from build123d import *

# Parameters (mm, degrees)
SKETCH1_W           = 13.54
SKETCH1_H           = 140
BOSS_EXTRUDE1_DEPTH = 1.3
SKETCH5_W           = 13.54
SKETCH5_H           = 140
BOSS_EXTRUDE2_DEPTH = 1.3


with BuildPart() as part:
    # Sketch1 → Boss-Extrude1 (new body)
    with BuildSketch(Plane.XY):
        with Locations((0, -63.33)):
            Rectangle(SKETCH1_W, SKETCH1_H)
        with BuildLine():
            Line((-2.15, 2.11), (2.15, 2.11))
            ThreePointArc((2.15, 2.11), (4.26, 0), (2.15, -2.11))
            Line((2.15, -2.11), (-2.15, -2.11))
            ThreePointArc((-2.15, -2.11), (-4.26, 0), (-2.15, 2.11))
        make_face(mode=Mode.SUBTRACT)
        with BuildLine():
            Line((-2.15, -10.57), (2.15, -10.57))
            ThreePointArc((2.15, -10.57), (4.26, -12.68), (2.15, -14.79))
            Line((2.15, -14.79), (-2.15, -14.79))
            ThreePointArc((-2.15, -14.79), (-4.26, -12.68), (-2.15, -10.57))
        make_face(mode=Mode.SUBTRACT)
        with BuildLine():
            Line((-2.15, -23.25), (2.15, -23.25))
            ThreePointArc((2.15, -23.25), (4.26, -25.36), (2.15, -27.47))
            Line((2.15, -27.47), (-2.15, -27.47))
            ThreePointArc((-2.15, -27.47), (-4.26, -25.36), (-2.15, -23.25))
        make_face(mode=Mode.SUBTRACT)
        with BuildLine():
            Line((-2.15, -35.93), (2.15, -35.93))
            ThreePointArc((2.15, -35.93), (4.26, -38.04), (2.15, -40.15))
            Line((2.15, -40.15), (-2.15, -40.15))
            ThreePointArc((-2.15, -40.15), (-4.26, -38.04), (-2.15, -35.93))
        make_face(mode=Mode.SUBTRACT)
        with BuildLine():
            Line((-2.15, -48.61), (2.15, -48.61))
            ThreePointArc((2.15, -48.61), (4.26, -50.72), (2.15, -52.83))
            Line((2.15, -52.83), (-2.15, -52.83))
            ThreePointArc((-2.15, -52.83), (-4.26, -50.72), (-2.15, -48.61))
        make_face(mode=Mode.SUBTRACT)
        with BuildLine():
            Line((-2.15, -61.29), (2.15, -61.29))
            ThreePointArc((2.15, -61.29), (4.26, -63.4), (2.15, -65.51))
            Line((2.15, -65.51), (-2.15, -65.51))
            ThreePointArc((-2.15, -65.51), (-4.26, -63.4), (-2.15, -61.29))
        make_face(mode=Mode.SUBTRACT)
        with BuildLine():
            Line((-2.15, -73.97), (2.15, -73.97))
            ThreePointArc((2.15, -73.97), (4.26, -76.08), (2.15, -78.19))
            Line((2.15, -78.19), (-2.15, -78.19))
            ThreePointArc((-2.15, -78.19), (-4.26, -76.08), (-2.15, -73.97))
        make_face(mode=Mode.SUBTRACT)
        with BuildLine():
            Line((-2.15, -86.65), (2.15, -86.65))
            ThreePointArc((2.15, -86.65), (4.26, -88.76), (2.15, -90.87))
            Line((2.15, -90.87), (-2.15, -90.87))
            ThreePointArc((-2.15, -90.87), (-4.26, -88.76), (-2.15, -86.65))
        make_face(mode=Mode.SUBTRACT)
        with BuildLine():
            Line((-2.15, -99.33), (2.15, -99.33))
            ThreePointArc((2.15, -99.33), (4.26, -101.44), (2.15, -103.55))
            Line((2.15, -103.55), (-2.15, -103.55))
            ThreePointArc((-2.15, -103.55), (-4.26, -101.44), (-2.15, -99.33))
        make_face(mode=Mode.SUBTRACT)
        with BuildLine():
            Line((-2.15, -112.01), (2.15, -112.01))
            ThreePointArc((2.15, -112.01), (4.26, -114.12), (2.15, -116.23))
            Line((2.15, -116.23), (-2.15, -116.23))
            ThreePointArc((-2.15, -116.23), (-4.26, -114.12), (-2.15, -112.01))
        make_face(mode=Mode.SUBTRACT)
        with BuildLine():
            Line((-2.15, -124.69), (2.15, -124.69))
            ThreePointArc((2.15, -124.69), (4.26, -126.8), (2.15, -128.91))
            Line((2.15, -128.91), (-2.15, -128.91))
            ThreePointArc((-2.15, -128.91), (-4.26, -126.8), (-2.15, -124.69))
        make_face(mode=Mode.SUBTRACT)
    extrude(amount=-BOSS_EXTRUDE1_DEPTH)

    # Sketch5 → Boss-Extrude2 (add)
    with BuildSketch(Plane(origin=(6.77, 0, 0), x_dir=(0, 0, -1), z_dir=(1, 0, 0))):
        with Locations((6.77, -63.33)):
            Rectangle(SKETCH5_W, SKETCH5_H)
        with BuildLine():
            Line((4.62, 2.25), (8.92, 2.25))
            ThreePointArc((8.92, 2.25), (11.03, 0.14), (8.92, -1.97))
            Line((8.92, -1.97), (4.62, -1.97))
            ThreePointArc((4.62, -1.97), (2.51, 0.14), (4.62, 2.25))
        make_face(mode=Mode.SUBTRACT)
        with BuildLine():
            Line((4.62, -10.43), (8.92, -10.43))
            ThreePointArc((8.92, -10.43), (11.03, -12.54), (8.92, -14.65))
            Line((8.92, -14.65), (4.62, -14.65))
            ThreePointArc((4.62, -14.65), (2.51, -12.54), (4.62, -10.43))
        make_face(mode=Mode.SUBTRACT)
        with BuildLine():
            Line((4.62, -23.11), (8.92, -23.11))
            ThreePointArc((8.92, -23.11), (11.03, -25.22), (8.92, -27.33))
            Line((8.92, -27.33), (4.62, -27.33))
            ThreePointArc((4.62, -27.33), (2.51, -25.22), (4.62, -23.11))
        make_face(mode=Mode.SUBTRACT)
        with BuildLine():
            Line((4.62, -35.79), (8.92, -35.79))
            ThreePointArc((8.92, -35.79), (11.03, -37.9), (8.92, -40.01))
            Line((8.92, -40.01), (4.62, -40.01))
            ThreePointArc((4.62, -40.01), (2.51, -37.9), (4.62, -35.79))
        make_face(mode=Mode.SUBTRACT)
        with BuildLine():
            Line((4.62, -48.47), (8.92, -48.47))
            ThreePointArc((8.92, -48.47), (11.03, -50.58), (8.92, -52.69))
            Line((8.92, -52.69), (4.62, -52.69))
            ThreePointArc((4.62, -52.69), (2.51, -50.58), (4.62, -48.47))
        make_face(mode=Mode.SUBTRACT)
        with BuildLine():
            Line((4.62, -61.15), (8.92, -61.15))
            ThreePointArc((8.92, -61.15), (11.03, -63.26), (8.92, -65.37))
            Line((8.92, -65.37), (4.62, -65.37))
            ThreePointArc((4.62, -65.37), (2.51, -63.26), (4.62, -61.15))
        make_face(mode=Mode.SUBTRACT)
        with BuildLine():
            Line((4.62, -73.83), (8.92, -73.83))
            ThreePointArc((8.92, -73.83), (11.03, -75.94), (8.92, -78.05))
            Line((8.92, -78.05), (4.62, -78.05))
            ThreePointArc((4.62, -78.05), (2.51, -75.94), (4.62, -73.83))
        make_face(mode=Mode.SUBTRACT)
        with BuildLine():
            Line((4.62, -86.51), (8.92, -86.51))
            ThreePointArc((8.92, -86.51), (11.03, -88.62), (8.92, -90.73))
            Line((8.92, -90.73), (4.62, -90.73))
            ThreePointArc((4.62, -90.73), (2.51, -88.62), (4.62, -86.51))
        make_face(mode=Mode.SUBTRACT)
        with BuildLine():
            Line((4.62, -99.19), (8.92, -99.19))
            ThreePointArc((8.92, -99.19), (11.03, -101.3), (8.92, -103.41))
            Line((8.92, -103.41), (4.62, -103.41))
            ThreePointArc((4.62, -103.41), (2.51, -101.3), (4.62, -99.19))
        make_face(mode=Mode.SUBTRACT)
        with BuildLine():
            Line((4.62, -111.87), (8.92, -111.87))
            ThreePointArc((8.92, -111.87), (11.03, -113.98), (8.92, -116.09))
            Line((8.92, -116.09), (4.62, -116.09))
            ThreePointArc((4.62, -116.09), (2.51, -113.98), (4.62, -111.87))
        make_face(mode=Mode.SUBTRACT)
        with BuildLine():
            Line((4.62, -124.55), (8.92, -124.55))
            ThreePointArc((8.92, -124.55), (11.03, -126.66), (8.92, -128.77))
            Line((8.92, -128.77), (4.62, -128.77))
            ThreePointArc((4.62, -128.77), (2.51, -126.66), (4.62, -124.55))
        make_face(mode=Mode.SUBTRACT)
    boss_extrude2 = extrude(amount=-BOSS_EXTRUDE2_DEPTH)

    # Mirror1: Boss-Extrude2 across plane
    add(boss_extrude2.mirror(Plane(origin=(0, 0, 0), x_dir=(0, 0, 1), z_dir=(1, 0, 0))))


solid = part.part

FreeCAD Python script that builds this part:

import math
import FreeCAD as App
import Part
import Sketcher

V = App.Vector
Q = App.Units.Quantity

doc = App.newDocument("Part")
body = doc.addObject("PartDesign::Body", "Body")

sketch1 = body.newObject("Sketcher::SketchObject", "Sketch")
sketch1.AttachmentSupport = (doc.getObject("XY_Plane"), [""])
sketch1.MapMode = "FlatFace"
sketch1.addGeometry([
    Part.LineSegment(V(-6.8, 6.7, 0), V(-6.8, -133.3, 0)),
    Part.LineSegment(V(-6.8, -133.3, 0), V(6.8, -133.3, 0)),
    Part.LineSegment(V(6.8, -133.3, 0), V(6.8, 6.7, 0)),
    Part.LineSegment(V(6.8, 6.7, 0), V(-6.8, 6.7, 0)),
    Part.ArcOfCircle(Part.Circle(V(-2.1, -126.8, 0), V(0, 0, 1), 2.1), math.radians(90), math.radians(270)),
    Part.LineSegment(V(-2.1, -124.7, 0), V(2.1, -124.7, 0)),
    Part.ArcOfCircle(Part.Circle(V(2.1, -126.8, 0), V(0, 0, 1), 2.1), math.radians(-90), math.radians(90)),
    Part.LineSegment(V(2.1, -128.9, 0), V(-2.1, -128.9, 0)),
    Part.ArcOfCircle(Part.Circle(V(-2.1, -114.1, 0), V(0, 0, 1), 2.1), math.radians(90), math.radians(270)),
    Part.LineSegment(V(-2.1, -112, 0), V(2.1, -112, 0)),
    Part.ArcOfCircle(Part.Circle(V(2.1, -114.1, 0), V(0, 0, 1), 2.1), math.radians(-90), math.radians(90)),
    Part.LineSegment(V(2.1, -116.2, 0), V(-2.1, -116.2, 0)),
    Part.ArcOfCircle(Part.Circle(V(-2.1, -101.4, 0), V(0, 0, 1), 2.1), math.radians(90), math.radians(270)),
    Part.LineSegment(V(-2.1, -99.3, 0), V(2.1, -99.3, 0)),
    Part.ArcOfCircle(Part.Circle(V(2.1, -101.4, 0), V(0, 0, 1), 2.1), math.radians(-90), math.radians(90)),
    Part.LineSegment(V(2.1, -103.5, 0), V(-2.1, -103.5, 0)),
    Part.ArcOfCircle(Part.Circle(V(-2.1, -88.8, 0), V(0, 0, 1), 2.1), math.radians(90), math.radians(270)),
    Part.LineSegment(V(-2.1, -86.7, 0), V(2.1, -86.7, 0)),
    Part.ArcOfCircle(Part.Circle(V(2.1, -88.8, 0), V(0, 0, 1), 2.1), math.radians(-90), math.radians(90)),
    Part.LineSegment(V(2.1, -90.9, 0), V(-2.1, -90.9, 0)),
    Part.ArcOfCircle(Part.Circle(V(-2.1, -76.1, 0), V(0, 0, 1), 2.1), math.radians(90), math.radians(270)),
    Part.LineSegment(V(-2.1, -74, 0), V(2.1, -74, 0)),
    Part.ArcOfCircle(Part.Circle(V(2.1, -76.1, 0), V(0, 0, 1), 2.1), math.radians(-90), math.radians(90)),
    Part.LineSegment(V(2.1, -78.2, 0), V(-2.1, -78.2, 0)),
    Part.ArcOfCircle(Part.Circle(V(-2.1, -63.4, 0), V(0, 0, 1), 2.1), math.radians(90), math.radians(270)),
    Part.LineSegment(V(-2.1, -61.3, 0), V(2.1, -61.3, 0)),
    Part.ArcOfCircle(Part.Circle(V(2.1, -63.4, 0), V(0, 0, 1), 2.1), math.radians(-90), math.radians(90)),
    Part.LineSegment(V(2.1, -65.5, 0), V(-2.1, -65.5, 0)),
    Part.ArcOfCircle(Part.Circle(V(-2.1, -50.7, 0), V(0, 0, 1), 2.1), math.radians(90), math.radians(270)),
    Part.LineSegment(V(-2.1, -48.6, 0), V(2.1, -48.6, 0)),
    Part.ArcOfCircle(Part.Circle(V(2.1, -50.7, 0), V(0, 0, 1), 2.1), math.radians(-90), math.radians(90)),
    Part.LineSegment(V(2.1, -52.8, 0), V(-2.1, -52.8, 0)),
    Part.ArcOfCircle(Part.Circle(V(-2.1, -38, 0), V(0, 0, 1), 2.1), math.radians(90), math.radians(270)),
    Part.LineSegment(V(-2.1, -35.9, 0), V(2.1, -35.9, 0)),
    Part.ArcOfCircle(Part.Circle(V(2.1, -38, 0), V(0, 0, 1), 2.1), math.radians(-90), math.radians(90)),
    Part.LineSegment(V(2.1, -40.1, 0), V(-2.1, -40.1, 0)),
    Part.ArcOfCircle(Part.Circle(V(-2.1, -25.4, 0), V(0, 0, 1), 2.1), math.radians(90), math.radians(270)),
    Part.LineSegment(V(-2.1, -23.2, 0), V(2.1, -23.2, 0)),
    Part.ArcOfCircle(Part.Circle(V(2.1, -25.4, 0), V(0, 0, 1), 2.1), math.radians(-90), math.radians(90)),
    Part.LineSegment(V(2.1, -27.5, 0), V(-2.1, -27.5, 0)),
    Part.ArcOfCircle(Part.Circle(V(-2.1, -12.7, 0), V(0, 0, 1), 2.1), math.radians(90), math.radians(270)),
    Part.LineSegment(V(-2.1, -10.6, 0), V(2.1, -10.6, 0)),
    Part.ArcOfCircle(Part.Circle(V(2.1, -12.7, 0), V(0, 0, 1), 2.1), math.radians(-90), math.radians(90)),
    Part.LineSegment(V(2.1, -14.8, 0), V(-2.1, -14.8, 0)),
    Part.ArcOfCircle(Part.Circle(V(-2.1, 0, 0), V(0, 0, 1), 2.1), math.radians(90), math.radians(270)),
    Part.LineSegment(V(-2.1, 2.1, 0), V(2.1, 2.1, 0)),
    Part.ArcOfCircle(Part.Circle(V(2.1, 0, 0), V(0, 0, 1), 2.1), math.radians(-90), math.radians(90)),
    Part.LineSegment(V(2.1, -2.1, 0), V(-2.1, -2.1, 0)),
], False)
sketch1.addConstraint([
    Sketcher.Constraint("Coincident", 0, 2, 1, 1),
    Sketcher.Constraint("Coincident", 1, 2, 2, 1),
    Sketcher.Constraint("Coincident", 2, 2, 3, 1),
    Sketcher.Constraint("Coincident", 3, 2, 0, 1),
    Sketcher.Constraint("Tangent", 4, 1, 5, 1),
    Sketcher.Constraint("Tangent", 5, 2, 6, 2),
    Sketcher.Constraint("Tangent", 6, 1, 7, 1),
    Sketcher.Constraint("Tangent", 7, 2, 4, 2),
    Sketcher.Constraint("Tangent", 8, 1, 9, 1),
    Sketcher.Constraint("Tangent", 9, 2, 10, 2),
    Sketcher.Constraint("Tangent", 10, 1, 11, 1),
    Sketcher.Constraint("Tangent", 11, 2, 8, 2),
    Sketcher.Constraint("Tangent", 12, 1, 13, 1),
    Sketcher.Constraint("Tangent", 13, 2, 14, 2),
    Sketcher.Constraint("Tangent", 14, 1, 15, 1),
    Sketcher.Constraint("Tangent", 15, 2, 12, 2),
    Sketcher.Constraint("Tangent", 16, 1, 17, 1),
    Sketcher.Constraint("Tangent", 17, 2, 18, 2),
    Sketcher.Constraint("Tangent", 18, 1, 19, 1),
    Sketcher.Constraint("Tangent", 19, 2, 16, 2),
    Sketcher.Constraint("Tangent", 20, 1, 21, 1),
    Sketcher.Constraint("Tangent", 21, 2, 22, 2),
    Sketcher.Constraint("Tangent", 22, 1, 23, 1),
    Sketcher.Constraint("Tangent", 23, 2, 20, 2),
    Sketcher.Constraint("Tangent", 24, 1, 25, 1),
    Sketcher.Constraint("Tangent", 25, 2, 26, 2),
    Sketcher.Constraint("Tangent", 26, 1, 27, 1),
    Sketcher.Constraint("Tangent", 27, 2, 24, 2),
    Sketcher.Constraint("Tangent", 28, 1, 29, 1),
    Sketcher.Constraint("Tangent", 29, 2, 30, 2),
    Sketcher.Constraint("Tangent", 30, 1, 31, 1),
    Sketcher.Constraint("Tangent", 31, 2, 28, 2),
    Sketcher.Constraint("Tangent", 32, 1, 33, 1),
    Sketcher.Constraint("Tangent", 33, 2, 34, 2),
    Sketcher.Constraint("Tangent", 34, 1, 35, 1),
    Sketcher.Constraint("Tangent", 35, 2, 32, 2),
    Sketcher.Constraint("Tangent", 36, 1, 37, 1),
    Sketcher.Constraint("Tangent", 37, 2, 38, 2),
    Sketcher.Constraint("Tangent", 38, 1, 39, 1),
    Sketcher.Constraint("Tangent", 39, 2, 36, 2),
    Sketcher.Constraint("Tangent", 40, 1, 41, 1),
    Sketcher.Constraint("Tangent", 41, 2, 42, 2),
    Sketcher.Constraint("Tangent", 42, 1, 43, 1),
    Sketcher.Constraint("Tangent", 43, 2, 40, 2),
    Sketcher.Constraint("Tangent", 44, 1, 45, 1),
    Sketcher.Constraint("Tangent", 45, 2, 46, 2),
    Sketcher.Constraint("Tangent", 46, 1, 47, 1),
    Sketcher.Constraint("Tangent", 47, 2, 44, 2),
    Sketcher.Constraint("Vertical", 0),
    Sketcher.Constraint("Horizontal", 1),
    Sketcher.Constraint("Vertical", 2),
    Sketcher.Constraint("Horizontal", 3),
    Sketcher.Constraint("Horizontal", 5),
    Sketcher.Constraint("Horizontal", 7),
    Sketcher.Constraint("Horizontal", 9),
    Sketcher.Constraint("Horizontal", 11),
    Sketcher.Constraint("Horizontal", 13),
    Sketcher.Constraint("Horizontal", 15),
    Sketcher.Constraint("Horizontal", 17),
    Sketcher.Constraint("Horizontal", 19),
    Sketcher.Constraint("Horizontal", 21),
    Sketcher.Constraint("Horizontal", 23),
    Sketcher.Constraint("Horizontal", 25),
    Sketcher.Constraint("Horizontal", 27),
    Sketcher.Constraint("Horizontal", 29),
    Sketcher.Constraint("Horizontal", 31),
    Sketcher.Constraint("Horizontal", 33),
    Sketcher.Constraint("Horizontal", 35),
    Sketcher.Constraint("Horizontal", 37),
    Sketcher.Constraint("Horizontal", 39),
    Sketcher.Constraint("Horizontal", 41),
    Sketcher.Constraint("Horizontal", 43),
    Sketcher.Constraint("Horizontal", 45),
    Sketcher.Constraint("Horizontal", 47),
    Sketcher.Constraint("Equal", 6, 8),
    Sketcher.Constraint("Equal", 10, 12),
    Sketcher.Constraint("Equal", 14, 16),
    Sketcher.Constraint("Equal", 18, 20),
    Sketcher.Constraint("Equal", 22, 24),
    Sketcher.Constraint("Equal", 26, 28),
    Sketcher.Constraint("Equal", 30, 32),
    Sketcher.Constraint("Equal", 34, 36),
    Sketcher.Constraint("Equal", 38, 40),
    Sketcher.Constraint("Equal", 42, 44),
    Sketcher.Constraint("Symmetric", 44, 3, 46, 3, -1, 1),
    Sketcher.Constraint("Vertical", 4, 3, 8, 3),
    Sketcher.Constraint("Vertical", 6, 3, 10, 3),
    Sketcher.Constraint("Vertical", 8, 3, 12, 3),
    Sketcher.Constraint("Vertical", 10, 3, 14, 3),
    Sketcher.Constraint("Vertical", 12, 3, 16, 3),
    Sketcher.Constraint("Vertical", 14, 3, 18, 3),
    Sketcher.Constraint("Vertical", 16, 3, 20, 3),
    Sketcher.Constraint("Vertical", 18, 3, 22, 3),
    Sketcher.Constraint("Vertical", 20, 3, 24, 3),
    Sketcher.Constraint("Vertical", 22, 3, 26, 3),
    Sketcher.Constraint("Vertical", 24, 3, 28, 3),
    Sketcher.Constraint("Vertical", 26, 3, 30, 3),
    Sketcher.Constraint("Vertical", 28, 3, 32, 3),
    Sketcher.Constraint("Vertical", 30, 3, 34, 3),
    Sketcher.Constraint("Vertical", 32, 3, 36, 3),
    Sketcher.Constraint("Vertical", 34, 3, 38, 3),
    Sketcher.Constraint("Vertical", 36, 3, 40, 3),
    Sketcher.Constraint("Vertical", 38, 3, 42, 3),
    Sketcher.Constraint("Vertical", 40, 3, 44, 3),
    Sketcher.Constraint("Vertical", 42, 3, 46, 3),
    Sketcher.Constraint("DistanceY", 0, 2, 0, 1, Q("140 mm")),
    Sketcher.Constraint("Radius", 4, Q("2.11 mm")),
    Sketcher.Constraint("DistanceX", 5, 1, 5, 2, Q("4.3 mm")),
    Sketcher.Constraint("DistanceX", 1, 1, 1, 2, Q("13.54 mm")),
    Sketcher.Constraint("DistanceY", 4, 3, -1, 1, Q("126.8 mm")),
    Sketcher.Constraint("DistanceY", 24, 3, -1, 1, Q("63.4 mm")),
    Sketcher.Constraint("DistanceY", 8, 3, -1, 1, Q("114.12 mm")),
    Sketcher.Constraint("DistanceY", 12, 3, -1, 1, Q("101.44 mm")),
    Sketcher.Constraint("DistanceY", 16, 3, -1, 1, Q("88.76 mm")),
    Sketcher.Constraint("DistanceY", 20, 3, -1, 1, Q("76.08 mm")),
    Sketcher.Constraint("DistanceY", 28, 3, -1, 1, Q("50.72 mm")),
    Sketcher.Constraint("DistanceY", 32, 3, -1, 1, Q("38.04 mm")),
    Sketcher.Constraint("DistanceY", 36, 3, -1, 1, Q("25.36 mm")),
    Sketcher.Constraint("DistanceY", 40, 3, -1, 1, Q("12.68 mm")),
    Sketcher.Constraint("DistanceX", 0, 2, -1, 1, Q("6.77 mm")),
    Sketcher.Constraint("DistanceY", 0, 2, -1, 1, Q("133.33 mm")),
])
pad1 = body.newObject("PartDesign::Pad", "Pad")
pad1.Profile = sketch1
pad1.Length = 1.3
pad1.Reversed = True

sketch2 = body.newObject("Sketcher::SketchObject", "Sketch001")
sketch2.AttachmentSupport = (doc.getObject("YZ_Plane"), [""])
sketch2.MapMode = "FlatFace"
sketch2.AttachmentOffset = App.Placement(V(0, 0, 6.77), App.Rotation())
sketch2.addGeometry([
    Part.LineSegment(V(6.7, 0, 0), V(-133.3, 0, 0)),
    Part.LineSegment(V(-133.3, 0, 0), V(-133.3, -13.5, 0)),
    Part.LineSegment(V(-133.3, -13.5, 0), V(6.7, -13.5, 0)),
    Part.LineSegment(V(6.7, -13.5, 0), V(6.7, 0, 0)),
    Part.ArcOfCircle(Part.Circle(V(-126.7, -4.6, 0), V(0, 0, 1), 2.1), math.radians(0), math.radians(180)),
    Part.LineSegment(V(-124.5, -4.6, 0), V(-124.5, -8.9, 0)),
    Part.ArcOfCircle(Part.Circle(V(-126.7, -8.9, 0), V(0, 0, 1), 2.1), math.radians(180), math.radians(360)),
    Part.LineSegment(V(-128.8, -8.9, 0), V(-128.8, -4.6, 0)),
    Part.ArcOfCircle(Part.Circle(V(-114, -4.6, 0), V(0, 0, 1), 2.1), math.radians(0), math.radians(180)),
    Part.LineSegment(V(-111.9, -4.6, 0), V(-111.9, -8.9, 0)),
    Part.ArcOfCircle(Part.Circle(V(-114, -8.9, 0), V(0, 0, 1), 2.1), math.radians(180), math.radians(360)),
    Part.LineSegment(V(-116.1, -8.9, 0), V(-116.1, -4.6, 0)),
    Part.ArcOfCircle(Part.Circle(V(-101.3, -4.6, 0), V(0, 0, 1), 2.1), math.radians(0), math.radians(180)),
    Part.LineSegment(V(-99.2, -4.6, 0), V(-99.2, -8.9, 0)),
    Part.ArcOfCircle(Part.Circle(V(-101.3, -8.9, 0), V(0, 0, 1), 2.1), math.radians(180), math.radians(360)),
    Part.LineSegment(V(-103.4, -8.9, 0), V(-103.4, -4.6, 0)),
    Part.ArcOfCircle(Part.Circle(V(-88.6, -4.6, 0), V(0, 0, 1), 2.1), math.radians(0), math.radians(180)),
    Part.LineSegment(V(-86.5, -4.6, 0), V(-86.5, -8.9, 0)),
    Part.ArcOfCircle(Part.Circle(V(-88.6, -8.9, 0), V(0, 0, 1), 2.1), math.radians(180), math.radians(360)),
    Part.LineSegment(V(-90.7, -8.9, 0), V(-90.7, -4.6, 0)),
    Part.ArcOfCircle(Part.Circle(V(-75.9, -4.6, 0), V(0, 0, 1), 2.1), math.radians(0), math.radians(180)),
    Part.LineSegment(V(-73.8, -4.6, 0), V(-73.8, -8.9, 0)),
    Part.ArcOfCircle(Part.Circle(V(-75.9, -8.9, 0), V(0, 0, 1), 2.1), math.radians(180), math.radians(360)),
    Part.LineSegment(V(-78, -8.9, 0), V(-78, -4.6, 0)),
    Part.ArcOfCircle(Part.Circle(V(-63.3, -4.6, 0), V(0, 0, 1), 2.1), math.radians(0), math.radians(180)),
    Part.LineSegment(V(-61.1, -4.6, 0), V(-61.1, -8.9, 0)),
    Part.ArcOfCircle(Part.Circle(V(-63.3, -8.9, 0), V(0, 0, 1), 2.1), math.radians(180), math.radians(360)),
    Part.LineSegment(V(-65.4, -8.9, 0), V(-65.4, -4.6, 0)),
    Part.ArcOfCircle(Part.Circle(V(-50.6, -4.6, 0), V(0, 0, 1), 2.1), math.radians(0), math.radians(180)),
    Part.LineSegment(V(-48.5, -4.6, 0), V(-48.5, -8.9, 0)),
    Part.ArcOfCircle(Part.Circle(V(-50.6, -8.9, 0), V(0, 0, 1), 2.1), math.radians(180), math.radians(360)),
    Part.LineSegment(V(-52.7, -8.9, 0), V(-52.7, -4.6, 0)),
    Part.ArcOfCircle(Part.Circle(V(-37.9, -4.6, 0), V(0, 0, 1), 2.1), math.radians(0), math.radians(180)),
    Part.LineSegment(V(-35.8, -4.6, 0), V(-35.8, -8.9, 0)),
    Part.ArcOfCircle(Part.Circle(V(-37.9, -8.9, 0), V(0, 0, 1), 2.1), math.radians(180), math.radians(360)),
    Part.LineSegment(V(-40, -8.9, 0), V(-40, -4.6, 0)),
    Part.ArcOfCircle(Part.Circle(V(-25.2, -4.6, 0), V(0, 0, 1), 2.1), math.radians(0), math.radians(180)),
    Part.LineSegment(V(-23.1, -4.6, 0), V(-23.1, -8.9, 0)),
    Part.ArcOfCircle(Part.Circle(V(-25.2, -8.9, 0), V(0, 0, 1), 2.1), math.radians(180), math.radians(360)),
    Part.LineSegment(V(-27.3, -8.9, 0), V(-27.3, -4.6, 0)),
    Part.ArcOfCircle(Part.Circle(V(-12.5, -4.6, 0), V(0, 0, 1), 2.1), math.radians(0), math.radians(180)),
    Part.LineSegment(V(-10.4, -4.6, 0), V(-10.4, -8.9, 0)),
    Part.ArcOfCircle(Part.Circle(V(-12.5, -8.9, 0), V(0, 0, 1), 2.1), math.radians(180), math.radians(360)),
    Part.LineSegment(V(-14.7, -8.9, 0), V(-14.7, -4.6, 0)),
    Part.ArcOfCircle(Part.Circle(V(0.1, -4.6, 0), V(0, 0, 1), 2.1), math.radians(0), math.radians(180)),
    Part.LineSegment(V(2.2, -4.6, 0), V(2.2, -8.9, 0)),
    Part.ArcOfCircle(Part.Circle(V(0.1, -8.9, 0), V(0, 0, 1), 2.1), math.radians(180), math.radians(360)),
    Part.LineSegment(V(-2, -8.9, 0), V(-2, -4.6, 0)),
], False)
sketch2.addConstraint([
    Sketcher.Constraint("Coincident", 0, 2, 1, 1),
    Sketcher.Constraint("Coincident", 1, 2, 2, 1),
    Sketcher.Constraint("Coincident", 2, 2, 3, 1),
    Sketcher.Constraint("Coincident", 3, 2, 0, 1),
    Sketcher.Constraint("Tangent", 4, 1, 5, 1),
    Sketcher.Constraint("Tangent", 5, 2, 6, 2),
    Sketcher.Constraint("Tangent", 6, 1, 7, 1),
    Sketcher.Constraint("Tangent", 7, 2, 4, 2),
    Sketcher.Constraint("Tangent", 8, 1, 9, 1),
    Sketcher.Constraint("Tangent", 9, 2, 10, 2),
    Sketcher.Constraint("Tangent", 10, 1, 11, 1),
    Sketcher.Constraint("Tangent", 11, 2, 8, 2),
    Sketcher.Constraint("Tangent", 12, 1, 13, 1),
    Sketcher.Constraint("Tangent", 13, 2, 14, 2),
    Sketcher.Constraint("Tangent", 14, 1, 15, 1),
    Sketcher.Constraint("Tangent", 15, 2, 12, 2),
    Sketcher.Constraint("Tangent", 16, 1, 17, 1),
    Sketcher.Constraint("Tangent", 17, 2, 18, 2),
    Sketcher.Constraint("Tangent", 18, 1, 19, 1),
    Sketcher.Constraint("Tangent", 19, 2, 16, 2),
    Sketcher.Constraint("Tangent", 20, 1, 21, 1),
    Sketcher.Constraint("Tangent", 21, 2, 22, 2),
    Sketcher.Constraint("Tangent", 22, 1, 23, 1),
    Sketcher.Constraint("Tangent", 23, 2, 20, 2),
    Sketcher.Constraint("Tangent", 24, 1, 25, 1),
    Sketcher.Constraint("Tangent", 25, 2, 26, 2),
    Sketcher.Constraint("Tangent", 26, 1, 27, 1),
    Sketcher.Constraint("Tangent", 27, 2, 24, 2),
    Sketcher.Constraint("Tangent", 28, 1, 29, 1),
    Sketcher.Constraint("Tangent", 29, 2, 30, 2),
    Sketcher.Constraint("Tangent", 30, 1, 31, 1),
    Sketcher.Constraint("Tangent", 31, 2, 28, 2),
    Sketcher.Constraint("Tangent", 32, 1, 33, 1),
    Sketcher.Constraint("Tangent", 33, 2, 34, 2),
    Sketcher.Constraint("Tangent", 34, 1, 35, 1),
    Sketcher.Constraint("Tangent", 35, 2, 32, 2),
    Sketcher.Constraint("Tangent", 36, 1, 37, 1),
    Sketcher.Constraint("Tangent", 37, 2, 38, 2),
    Sketcher.Constraint("Tangent", 38, 1, 39, 1),
    Sketcher.Constraint("Tangent", 39, 2, 36, 2),
    Sketcher.Constraint("Tangent", 40, 1, 41, 1),
    Sketcher.Constraint("Tangent", 41, 2, 42, 2),
    Sketcher.Constraint("Tangent", 42, 1, 43, 1),
    Sketcher.Constraint("Tangent", 43, 2, 40, 2),
    Sketcher.Constraint("Tangent", 44, 1, 45, 1),
    Sketcher.Constraint("Tangent", 45, 2, 46, 2),
    Sketcher.Constraint("Tangent", 46, 1, 47, 1),
    Sketcher.Constraint("Tangent", 47, 2, 44, 2),
    Sketcher.Constraint("Horizontal", 0),
    Sketcher.Constraint("Vertical", 1),
    Sketcher.Constraint("Horizontal", 2),
    Sketcher.Constraint("Vertical", 3),
    Sketcher.Constraint("Vertical", 5),
    Sketcher.Constraint("Vertical", 7),
    Sketcher.Constraint("Vertical", 9),
    Sketcher.Constraint("Vertical", 11),
    Sketcher.Constraint("Vertical", 13),
    Sketcher.Constraint("Vertical", 15),
    Sketcher.Constraint("Vertical", 17),
    Sketcher.Constraint("Vertical", 19),
    Sketcher.Constraint("Vertical", 21),
    Sketcher.Constraint("Vertical", 23),
    Sketcher.Constraint("Vertical", 25),
    Sketcher.Constraint("Vertical", 27),
    Sketcher.Constraint("Vertical", 29),
    Sketcher.Constraint("Vertical", 31),
    Sketcher.Constraint("Vertical", 33),
    Sketcher.Constraint("Vertical", 35),
    Sketcher.Constraint("Vertical", 37),
    Sketcher.Constraint("Vertical", 39),
    Sketcher.Constraint("Vertical", 41),
    Sketcher.Constraint("Vertical", 43),
    Sketcher.Constraint("Vertical", 45),
    Sketcher.Constraint("Vertical", 47),
    Sketcher.Constraint("Equal", 6, 8),
    Sketcher.Constraint("Equal", 10, 12),
    Sketcher.Constraint("Equal", 14, 16),
    Sketcher.Constraint("Equal", 18, 20),
    Sketcher.Constraint("Equal", 22, 24),
    Sketcher.Constraint("Equal", 26, 28),
    Sketcher.Constraint("Equal", 30, 32),
    Sketcher.Constraint("Equal", 34, 36),
    Sketcher.Constraint("Equal", 38, 40),
    Sketcher.Constraint("Equal", 42, 44),
    Sketcher.Constraint("PointOnObject", 0, 2, -1),
    Sketcher.Constraint("Horizontal", 4, 3, 8, 3),
    Sketcher.Constraint("Horizontal", 6, 3, 10, 3),
    Sketcher.Constraint("Horizontal", 8, 3, 12, 3),
    Sketcher.Constraint("Horizontal", 10, 3, 14, 3),
    Sketcher.Constraint("Horizontal", 12, 3, 16, 3),
    Sketcher.Constraint("Horizontal", 14, 3, 18, 3),
    Sketcher.Constraint("Horizontal", 16, 3, 20, 3),
    Sketcher.Constraint("Horizontal", 18, 3, 22, 3),
    Sketcher.Constraint("Horizontal", 20, 3, 24, 3),
    Sketcher.Constraint("Horizontal", 22, 3, 26, 3),
    Sketcher.Constraint("Horizontal", 24, 3, 28, 3),
    Sketcher.Constraint("Horizontal", 26, 3, 30, 3),
    Sketcher.Constraint("Horizontal", 28, 3, 32, 3),
    Sketcher.Constraint("Horizontal", 30, 3, 34, 3),
    Sketcher.Constraint("Horizontal", 32, 3, 36, 3),
    Sketcher.Constraint("Horizontal", 34, 3, 38, 3),
    Sketcher.Constraint("Horizontal", 36, 3, 40, 3),
    Sketcher.Constraint("Horizontal", 38, 3, 42, 3),
    Sketcher.Constraint("Horizontal", 40, 3, 44, 3),
    Sketcher.Constraint("Horizontal", 42, 3, 46, 3),
    Sketcher.Constraint("DistanceX", 0, 2, 0, 1, Q("140 mm")),
    Sketcher.Constraint("Radius", 4, Q("2.11 mm")),
    Sketcher.Constraint("DistanceY", 5, 2, 5, 1, Q("4.3 mm")),
    Sketcher.Constraint("DistanceY", 1, 2, 1, 1, Q("13.54 mm")),
    Sketcher.Constraint("DistanceX", 12, 3, -1, 1, Q("101.3 mm")),
    Sketcher.Constraint("DistanceX", 32, 3, -1, 1, Q("37.9 mm")),
    Sketcher.Constraint("DistanceX", 4, 3, -1, 1, Q("126.66 mm")),
    Sketcher.Constraint("DistanceY", 4, 3, -1, 1, Q("4.62 mm")),
    Sketcher.Constraint("DistanceX", 8, 3, -1, 1, Q("113.98 mm")),
    Sketcher.Constraint("DistanceX", 16, 3, -1, 1, Q("88.62 mm")),
    Sketcher.Constraint("DistanceX", 20, 3, -1, 1, Q("75.94 mm")),
    Sketcher.Constraint("DistanceX", 24, 3, -1, 1, Q("63.26 mm")),
    Sketcher.Constraint("DistanceX", 28, 3, -1, 1, Q("50.58 mm")),
    Sketcher.Constraint("DistanceX", 36, 3, -1, 1, Q("25.22 mm")),
    Sketcher.Constraint("DistanceX", 40, 3, -1, 1, Q("12.54 mm")),
    Sketcher.Constraint("DistanceX", -1, 1, 44, 3, Q("0.14 mm")),
    Sketcher.Constraint("DistanceX", 0, 2, -1, 1, Q("133.33 mm")),
])
pad2 = body.newObject("PartDesign::Pad", "Pad001")
pad2.Profile = sketch2
pad2.Length = 1.3
pad2.Reversed = True
doc.recompute()

mirrored = body.newObject("PartDesign::Mirrored", "Mirrored")
mirrored.Originals = [pad2]
mirrored.MirrorPlane = (doc.getObject("YZ_Plane"), [""])
body.Tip = mirrored

doc.recompute()
